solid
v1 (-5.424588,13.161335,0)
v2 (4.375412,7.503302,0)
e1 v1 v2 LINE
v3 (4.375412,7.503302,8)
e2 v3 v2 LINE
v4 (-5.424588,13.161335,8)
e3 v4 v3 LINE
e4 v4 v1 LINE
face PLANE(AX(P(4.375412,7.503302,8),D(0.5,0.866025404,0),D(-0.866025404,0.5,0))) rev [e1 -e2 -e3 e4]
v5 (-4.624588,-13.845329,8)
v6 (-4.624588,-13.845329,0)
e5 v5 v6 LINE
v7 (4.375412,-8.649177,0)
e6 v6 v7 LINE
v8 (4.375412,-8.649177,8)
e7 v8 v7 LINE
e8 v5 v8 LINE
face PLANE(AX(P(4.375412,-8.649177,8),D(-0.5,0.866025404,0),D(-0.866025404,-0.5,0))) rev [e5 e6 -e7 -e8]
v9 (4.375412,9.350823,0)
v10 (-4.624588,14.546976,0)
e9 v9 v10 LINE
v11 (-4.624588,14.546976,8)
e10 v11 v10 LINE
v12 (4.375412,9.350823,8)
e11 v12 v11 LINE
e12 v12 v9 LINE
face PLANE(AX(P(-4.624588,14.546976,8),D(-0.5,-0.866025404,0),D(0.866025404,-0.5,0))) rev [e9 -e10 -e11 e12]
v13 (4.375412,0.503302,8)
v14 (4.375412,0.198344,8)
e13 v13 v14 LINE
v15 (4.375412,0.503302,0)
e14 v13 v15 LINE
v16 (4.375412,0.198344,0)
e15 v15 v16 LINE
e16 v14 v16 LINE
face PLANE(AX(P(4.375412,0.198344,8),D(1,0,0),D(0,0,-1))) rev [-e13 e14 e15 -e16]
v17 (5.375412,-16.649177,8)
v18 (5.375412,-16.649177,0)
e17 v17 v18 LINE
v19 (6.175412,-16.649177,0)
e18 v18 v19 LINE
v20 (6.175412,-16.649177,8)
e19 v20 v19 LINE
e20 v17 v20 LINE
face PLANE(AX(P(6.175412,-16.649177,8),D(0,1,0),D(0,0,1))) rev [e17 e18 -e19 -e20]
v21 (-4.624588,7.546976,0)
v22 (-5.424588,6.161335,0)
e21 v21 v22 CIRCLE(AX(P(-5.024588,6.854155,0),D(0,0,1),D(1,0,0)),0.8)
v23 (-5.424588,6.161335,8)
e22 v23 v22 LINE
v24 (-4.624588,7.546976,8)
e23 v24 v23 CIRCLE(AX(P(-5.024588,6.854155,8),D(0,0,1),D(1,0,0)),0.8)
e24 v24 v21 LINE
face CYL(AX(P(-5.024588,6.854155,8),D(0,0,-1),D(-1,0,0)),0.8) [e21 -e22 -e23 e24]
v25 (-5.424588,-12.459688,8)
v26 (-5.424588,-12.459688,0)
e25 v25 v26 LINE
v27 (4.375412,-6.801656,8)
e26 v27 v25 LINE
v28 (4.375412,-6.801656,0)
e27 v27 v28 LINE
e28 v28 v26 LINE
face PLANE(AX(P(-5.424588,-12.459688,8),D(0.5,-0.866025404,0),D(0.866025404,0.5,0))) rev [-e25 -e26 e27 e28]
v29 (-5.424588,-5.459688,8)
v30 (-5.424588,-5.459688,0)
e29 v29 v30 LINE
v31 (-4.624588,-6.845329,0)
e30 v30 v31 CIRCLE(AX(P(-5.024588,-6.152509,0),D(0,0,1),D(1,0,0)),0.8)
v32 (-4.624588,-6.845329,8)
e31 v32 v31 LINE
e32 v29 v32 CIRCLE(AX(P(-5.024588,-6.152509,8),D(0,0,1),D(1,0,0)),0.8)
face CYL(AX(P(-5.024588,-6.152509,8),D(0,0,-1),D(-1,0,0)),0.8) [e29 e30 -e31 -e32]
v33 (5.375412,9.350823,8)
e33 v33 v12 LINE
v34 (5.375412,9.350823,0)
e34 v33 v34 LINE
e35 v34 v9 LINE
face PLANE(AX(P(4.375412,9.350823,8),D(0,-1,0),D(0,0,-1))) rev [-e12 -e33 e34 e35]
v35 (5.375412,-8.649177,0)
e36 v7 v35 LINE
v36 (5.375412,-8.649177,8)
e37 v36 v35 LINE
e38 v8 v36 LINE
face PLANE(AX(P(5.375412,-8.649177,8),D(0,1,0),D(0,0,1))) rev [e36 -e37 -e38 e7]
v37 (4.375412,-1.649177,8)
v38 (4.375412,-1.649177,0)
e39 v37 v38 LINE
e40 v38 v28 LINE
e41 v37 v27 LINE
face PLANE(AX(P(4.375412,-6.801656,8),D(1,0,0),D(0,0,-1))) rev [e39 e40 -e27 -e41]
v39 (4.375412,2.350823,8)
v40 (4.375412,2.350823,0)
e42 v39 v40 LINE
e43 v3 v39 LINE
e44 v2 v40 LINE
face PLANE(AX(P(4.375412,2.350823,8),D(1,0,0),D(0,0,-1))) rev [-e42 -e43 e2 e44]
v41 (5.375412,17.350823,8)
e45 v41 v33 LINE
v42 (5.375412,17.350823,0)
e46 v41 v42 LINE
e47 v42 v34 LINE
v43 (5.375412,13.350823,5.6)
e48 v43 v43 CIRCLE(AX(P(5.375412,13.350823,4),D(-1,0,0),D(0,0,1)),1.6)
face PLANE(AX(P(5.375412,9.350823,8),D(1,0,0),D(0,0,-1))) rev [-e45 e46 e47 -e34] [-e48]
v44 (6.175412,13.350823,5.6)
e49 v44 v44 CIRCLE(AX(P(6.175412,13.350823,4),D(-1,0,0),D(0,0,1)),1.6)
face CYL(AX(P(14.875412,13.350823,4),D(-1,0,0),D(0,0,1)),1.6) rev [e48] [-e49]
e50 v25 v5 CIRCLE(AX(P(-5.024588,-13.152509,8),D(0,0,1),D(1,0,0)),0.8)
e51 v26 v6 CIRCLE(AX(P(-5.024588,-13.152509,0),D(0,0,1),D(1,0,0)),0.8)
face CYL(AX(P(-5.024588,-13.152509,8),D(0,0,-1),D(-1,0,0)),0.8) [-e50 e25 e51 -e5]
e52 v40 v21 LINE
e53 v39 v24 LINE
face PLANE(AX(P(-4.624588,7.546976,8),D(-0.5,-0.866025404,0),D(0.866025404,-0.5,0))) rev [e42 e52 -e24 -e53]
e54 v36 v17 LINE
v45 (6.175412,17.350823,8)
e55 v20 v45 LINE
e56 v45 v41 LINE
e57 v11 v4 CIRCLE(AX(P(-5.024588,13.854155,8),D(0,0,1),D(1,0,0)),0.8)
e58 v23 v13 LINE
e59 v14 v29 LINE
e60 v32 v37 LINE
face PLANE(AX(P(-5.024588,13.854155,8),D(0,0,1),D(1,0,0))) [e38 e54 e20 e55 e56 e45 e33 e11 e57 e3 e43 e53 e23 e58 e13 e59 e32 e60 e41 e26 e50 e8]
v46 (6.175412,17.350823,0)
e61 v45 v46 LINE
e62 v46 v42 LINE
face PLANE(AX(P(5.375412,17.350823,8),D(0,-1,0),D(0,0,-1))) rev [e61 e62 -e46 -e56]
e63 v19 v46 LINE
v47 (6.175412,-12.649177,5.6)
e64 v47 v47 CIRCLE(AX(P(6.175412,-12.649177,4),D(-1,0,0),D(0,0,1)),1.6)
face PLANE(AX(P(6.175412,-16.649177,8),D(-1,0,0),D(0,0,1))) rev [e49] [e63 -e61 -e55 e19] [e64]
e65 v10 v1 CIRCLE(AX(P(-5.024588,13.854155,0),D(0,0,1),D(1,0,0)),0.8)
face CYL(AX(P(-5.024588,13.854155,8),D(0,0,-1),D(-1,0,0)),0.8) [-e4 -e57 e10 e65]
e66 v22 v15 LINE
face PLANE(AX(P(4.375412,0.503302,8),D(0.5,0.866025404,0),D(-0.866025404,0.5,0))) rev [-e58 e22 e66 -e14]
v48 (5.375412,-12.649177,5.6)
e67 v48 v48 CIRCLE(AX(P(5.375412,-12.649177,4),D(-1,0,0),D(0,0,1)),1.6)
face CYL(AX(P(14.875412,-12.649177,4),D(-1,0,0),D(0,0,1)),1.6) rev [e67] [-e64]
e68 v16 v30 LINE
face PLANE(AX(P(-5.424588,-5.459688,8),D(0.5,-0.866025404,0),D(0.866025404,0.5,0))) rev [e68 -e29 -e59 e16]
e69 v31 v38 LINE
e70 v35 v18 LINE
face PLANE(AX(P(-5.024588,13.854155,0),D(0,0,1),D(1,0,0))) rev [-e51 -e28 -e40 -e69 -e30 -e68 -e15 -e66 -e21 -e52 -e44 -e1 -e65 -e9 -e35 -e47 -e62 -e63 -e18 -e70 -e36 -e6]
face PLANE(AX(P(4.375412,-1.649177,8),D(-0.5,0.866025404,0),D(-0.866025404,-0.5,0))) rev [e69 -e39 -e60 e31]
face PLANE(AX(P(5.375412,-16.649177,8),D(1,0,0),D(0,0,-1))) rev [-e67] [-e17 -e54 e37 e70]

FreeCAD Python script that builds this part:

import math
import FreeCAD as App
import Part
import Sketcher
Q = App.Units.Quantity

doc = App.newDocument("Part")
params = doc.addObject("Spreadsheet::Sheet", "Params")
for row, (alias, value) in enumerate([
    ("sketch1_radius", "0.8 mm"),
    ("sketch1_width", "1 mm"),
    ("sketch1_height", "34 mm"),
    ("sketch1_height2", "8 mm"),
    ("sketch1_width2", "0.8 mm"),
    ("pad1_length", "8 mm"),
    ("sketch2_diameter", "3.2 mm"),
    ("pocket1_length", "9.5 mm"),
], start=1):
    params.set(f"A{row}", alias)
    params.set(f"B{row}", "=" + value)
    params.setAlias(f"B{row}", alias)

body = doc.addObject("PartDesign::Body", "Body")

sketch1 = body.newObject("Sketcher::SketchObject", "Sketch")
sketch1.AttachmentSupport = (doc.getObject("XY_Plane"), [""])
sketch1.MapMode = "FlatFace"
sketch1.addGeometry([
    Part.LineSegment(App.Vector(5.38, -16.65, 0), App.Vector(6.18, -16.65, 0)),
    Part.LineSegment(App.Vector(6.18, -16.65, 0), App.Vector(6.18, 17.35, 0)),
    Part.LineSegment(App.Vector(6.18, 17.35, 0), App.Vector(5.38, 17.35, 0)),
    Part.LineSegment(App.Vector(5.38, 17.35, 0), App.Vector(5.38, 9.35, 0)),
    Part.LineSegment(App.Vector(5.38, 9.35, 0), App.Vector(4.38, 9.35, 0)),
    Part.LineSegment(App.Vector(4.38, 9.35, 0), App.Vector(-4.62, 14.55, 0)),
    Part.ArcOfCircle(Part.Circle(App.Vector(-5.02, 13.85, 0), App.Vector(0, 0, 1), 0.8), math.radians(60), math.radians(240)),
    Part.LineSegment(App.Vector(-5.42, 13.16, 0), App.Vector(4.38, 7.5, 0)),
    Part.LineSegment(App.Vector(4.38, 7.5, 0), App.Vector(4.38, 2.35, 0)),
    Part.LineSegment(App.Vector(4.38, 2.35, 0), App.Vector(-4.62, 7.55, 0)),
    Part.ArcOfCircle(Part.Circle(App.Vector(-5.02, 6.85, 0), App.Vector(0, 0, 1), 0.8), math.radians(60), math.radians(240)),
    Part.LineSegment(App.Vector(-5.42, 6.16, 0), App.Vector(4.38, 0.5, 0)),
    Part.LineSegment(App.Vector(4.38, 0.5, 0), App.Vector(4.38, 0.2, 0)),
    Part.LineSegment(App.Vector(4.38, 0.2, 0), App.Vector(-5.42, -5.46, 0)),
    Part.ArcOfCircle(Part.Circle(App.Vector(-5.02, -6.15, 0), App.Vector(0, 0, 1), 0.8), math.radians(120), math.radians(300)),
    Part.LineSegment(App.Vector(-4.62, -6.85, 0), App.Vector(4.38, -1.65, 0)),
    Part.LineSegment(App.Vector(4.38, -1.65, 0), App.Vector(4.38, -6.8, 0)),
    Part.LineSegment(App.Vector(4.38, -6.8, 0), App.Vector(-5.42, -12.46, 0)),
    Part.ArcOfCircle(Part.Circle(App.Vector(-5.02, -13.15, 0), App.Vector(0, 0, 1), 0.8), math.radians(120), math.radians(300)),
    Part.LineSegment(App.Vector(-4.62, -13.85, 0), App.Vector(4.38, -8.65, 0)),
    Part.LineSegment(App.Vector(4.38, -8.65, 0), App.Vector(5.38, -8.65, 0)),
    Part.LineSegment(App.Vector(5.38, -8.65, 0), App.Vector(5.38, -16.65, 0)),
], False)
sketch1.addConstraint([
    Sketcher.Constraint("Coincident", 0, 2, 1, 1),
    Sketcher.Constraint("Coincident", 1, 2, 2, 1),
    Sketcher.Constraint("Coincident", 2, 2, 3, 1),
    Sketcher.Constraint("Coincident", 3, 2, 4, 1),
    Sketcher.Constraint("Coincident", 4, 2, 5, 1),
    Sketcher.Constraint("Tangent", 5, 2, 6, 1),
    Sketcher.Constraint("Tangent", 6, 2, 7, 1),
    Sketcher.Constraint("Coincident", 7, 2, 8, 1),
    Sketcher.Constraint("Coincident", 8, 2, 9, 1),
    Sketcher.Constraint("Tangent", 9, 2, 10, 1),
    Sketcher.Constraint("Tangent", 10, 2, 11, 1),
    Sketcher.Constraint("Coincident", 11, 2, 12, 1),
    Sketcher.Constraint("Coincident", 12, 2, 13, 1),
    Sketcher.Constraint("Tangent", 13, 2, 14, 1),
    Sketcher.Constraint("Tangent", 14, 2, 15, 1),
    Sketcher.Constraint("Coincident", 15, 2, 16, 1),
    Sketcher.Constraint("Coincident", 16, 2, 17, 1),
    Sketcher.Constraint("Tangent", 17, 2, 18, 1),
    Sketcher.Constraint("Tangent", 18, 2, 19, 1),
    Sketcher.Constraint("Coincident", 19, 2, 20, 1),
    Sketcher.Constraint("Coincident", 20, 2, 21, 1),
    Sketcher.Constraint("Coincident", 21, 2, 0, 1),
    Sketcher.Constraint("Horizontal", 0),
    Sketcher.Constraint("Vertical", 1),
    Sketcher.Constraint("Horizontal", 2),
    Sketcher.Constraint("Vertical", 3),
    Sketcher.Constraint("Horizontal", 4),
    Sketcher.Constraint("Vertical", 8),
    Sketcher.Constraint("Vertical", 12),
    Sketcher.Constraint("Vertical", 16),
    Sketcher.Constraint("Horizontal", 20),
    Sketcher.Constraint("Vertical", 21),
    Sketcher.Constraint("Equal", 6, 10),
    Sketcher.Constraint("Equal", 10, 14),
    Sketcher.Constraint("Equal", 14, 18),
    Sketcher.Constraint("Parallel", 5, 7),
    Sketcher.Constraint("Parallel", 7, 9),
    Sketcher.Constraint("Parallel", 9, 11),
    Sketcher.Constraint("Parallel", 13, 15),
    Sketcher.Constraint("Parallel", 15, 17),
    Sketcher.Constraint("Parallel", 17, 19),
    Sketcher.Constraint("Vertical", 6, 3, 10, 3),
    Sketcher.Constraint("Vertical", 10, 3, 14, 3),
    Sketcher.Constraint("Vertical", 14, 3, 18, 3),
    Sketcher.Constraint("Vertical", 4, 2, 7, 2),
    Sketcher.Constraint("Vertical", 8, 2, 11, 2),
    Sketcher.Constraint("Vertical", 10, 2, 13, 2),
    Sketcher.Constraint("Vertical", 12, 2, 15, 2),
    Sketcher.Constraint("Vertical", 16, 2, 19, 2),
    Sketcher.Constraint("Vertical", 3, 2, 20, 2),
    Sketcher.Constraint("Equal", 8, 16),
    Sketcher.Constraint("Equal", 3, 21),
    Sketcher.Constraint("Radius", 6, 0.8),
    Sketcher.Constraint("DistanceX", 4, 2, 4, 1, 1.0),
    Sketcher.Constraint("DistanceY", 1, 1, 1, 2, 34.0),
    Sketcher.Constraint("DistanceY", 3, 2, 3, 1, 8.0),
    Sketcher.Constraint("Angle", 5, Q("150 deg")),
    Sketcher.Constraint("DistanceX", 0, 1, 0, 2, 0.8),
    Sketcher.Constraint("DistanceY", 10, 3, 6, 3, 7.0),
    Sketcher.Constraint("DistanceX", 5, 2, 2, 2, 10.0),
    Sketcher.Constraint("DistanceX", 6, 3, -1, 1, 5.024588),
    Sketcher.Constraint("DistanceY", 14, 3, -1, 1, 6.152509),
])
sketch1.setExpression("Constraints[52]", "Params.sketch1_radius")
sketch1.setExpression("Constraints[53]", "Params.sketch1_width")
sketch1.setExpression("Constraints[54]", "Params.sketch1_height")
sketch1.setExpression("Constraints[55]", "Params.sketch1_height2")
sketch1.setExpression("Constraints[57]", "Params.sketch1_width2")
pad1 = body.newObject("PartDesign::Pad", "Pad")
pad1.Profile = sketch1
pad1.setExpression("Length", "Params.pad1_length")

sketch2 = body.newObject("Sketcher::SketchObject", "Sketch001")
sketch2.AttachmentSupport = (doc.getObject("YZ_Plane"), [""])
sketch2.MapMode = "FlatFace"
sketch2.AttachmentOffset = App.Placement(App.Vector(0, 0, 5.375412), App.Rotation())
sketch2.addGeometry([
    Part.Circle(App.Vector(13.4, 4, 0), App.Vector(0, 0, 1), 1.6),
    Part.Circle(App.Vector(-12.6, 4, 0), App.Vector(0, 0, 1), 1.6),
], False)
sketch2.addConstraint([
    Sketcher.Constraint("Equal", 0, 1),
    Sketcher.Constraint("Horizontal", 0, 3, 1, 3),
    Sketcher.Constraint("Diameter", 0, 3.2),
    Sketcher.Constraint("DistanceY", -1, 1, 0, 3, 4.0),
    Sketcher.Constraint("DistanceX", 1, 3, 0, 3, 26.0),
    Sketcher.Constraint("DistanceX", -1, 1, 0, 3, 13.350823),
])
sketch2.setExpression("Constraints[2]", "Params.sketch2_diameter")
pocket1 = body.newObject("PartDesign::Pocket", "Pocket")
pocket1.Profile = sketch2
pocket1.setExpression("Length", "Params.pocket1_length")
pocket1.Reversed = True

doc.recompute()
